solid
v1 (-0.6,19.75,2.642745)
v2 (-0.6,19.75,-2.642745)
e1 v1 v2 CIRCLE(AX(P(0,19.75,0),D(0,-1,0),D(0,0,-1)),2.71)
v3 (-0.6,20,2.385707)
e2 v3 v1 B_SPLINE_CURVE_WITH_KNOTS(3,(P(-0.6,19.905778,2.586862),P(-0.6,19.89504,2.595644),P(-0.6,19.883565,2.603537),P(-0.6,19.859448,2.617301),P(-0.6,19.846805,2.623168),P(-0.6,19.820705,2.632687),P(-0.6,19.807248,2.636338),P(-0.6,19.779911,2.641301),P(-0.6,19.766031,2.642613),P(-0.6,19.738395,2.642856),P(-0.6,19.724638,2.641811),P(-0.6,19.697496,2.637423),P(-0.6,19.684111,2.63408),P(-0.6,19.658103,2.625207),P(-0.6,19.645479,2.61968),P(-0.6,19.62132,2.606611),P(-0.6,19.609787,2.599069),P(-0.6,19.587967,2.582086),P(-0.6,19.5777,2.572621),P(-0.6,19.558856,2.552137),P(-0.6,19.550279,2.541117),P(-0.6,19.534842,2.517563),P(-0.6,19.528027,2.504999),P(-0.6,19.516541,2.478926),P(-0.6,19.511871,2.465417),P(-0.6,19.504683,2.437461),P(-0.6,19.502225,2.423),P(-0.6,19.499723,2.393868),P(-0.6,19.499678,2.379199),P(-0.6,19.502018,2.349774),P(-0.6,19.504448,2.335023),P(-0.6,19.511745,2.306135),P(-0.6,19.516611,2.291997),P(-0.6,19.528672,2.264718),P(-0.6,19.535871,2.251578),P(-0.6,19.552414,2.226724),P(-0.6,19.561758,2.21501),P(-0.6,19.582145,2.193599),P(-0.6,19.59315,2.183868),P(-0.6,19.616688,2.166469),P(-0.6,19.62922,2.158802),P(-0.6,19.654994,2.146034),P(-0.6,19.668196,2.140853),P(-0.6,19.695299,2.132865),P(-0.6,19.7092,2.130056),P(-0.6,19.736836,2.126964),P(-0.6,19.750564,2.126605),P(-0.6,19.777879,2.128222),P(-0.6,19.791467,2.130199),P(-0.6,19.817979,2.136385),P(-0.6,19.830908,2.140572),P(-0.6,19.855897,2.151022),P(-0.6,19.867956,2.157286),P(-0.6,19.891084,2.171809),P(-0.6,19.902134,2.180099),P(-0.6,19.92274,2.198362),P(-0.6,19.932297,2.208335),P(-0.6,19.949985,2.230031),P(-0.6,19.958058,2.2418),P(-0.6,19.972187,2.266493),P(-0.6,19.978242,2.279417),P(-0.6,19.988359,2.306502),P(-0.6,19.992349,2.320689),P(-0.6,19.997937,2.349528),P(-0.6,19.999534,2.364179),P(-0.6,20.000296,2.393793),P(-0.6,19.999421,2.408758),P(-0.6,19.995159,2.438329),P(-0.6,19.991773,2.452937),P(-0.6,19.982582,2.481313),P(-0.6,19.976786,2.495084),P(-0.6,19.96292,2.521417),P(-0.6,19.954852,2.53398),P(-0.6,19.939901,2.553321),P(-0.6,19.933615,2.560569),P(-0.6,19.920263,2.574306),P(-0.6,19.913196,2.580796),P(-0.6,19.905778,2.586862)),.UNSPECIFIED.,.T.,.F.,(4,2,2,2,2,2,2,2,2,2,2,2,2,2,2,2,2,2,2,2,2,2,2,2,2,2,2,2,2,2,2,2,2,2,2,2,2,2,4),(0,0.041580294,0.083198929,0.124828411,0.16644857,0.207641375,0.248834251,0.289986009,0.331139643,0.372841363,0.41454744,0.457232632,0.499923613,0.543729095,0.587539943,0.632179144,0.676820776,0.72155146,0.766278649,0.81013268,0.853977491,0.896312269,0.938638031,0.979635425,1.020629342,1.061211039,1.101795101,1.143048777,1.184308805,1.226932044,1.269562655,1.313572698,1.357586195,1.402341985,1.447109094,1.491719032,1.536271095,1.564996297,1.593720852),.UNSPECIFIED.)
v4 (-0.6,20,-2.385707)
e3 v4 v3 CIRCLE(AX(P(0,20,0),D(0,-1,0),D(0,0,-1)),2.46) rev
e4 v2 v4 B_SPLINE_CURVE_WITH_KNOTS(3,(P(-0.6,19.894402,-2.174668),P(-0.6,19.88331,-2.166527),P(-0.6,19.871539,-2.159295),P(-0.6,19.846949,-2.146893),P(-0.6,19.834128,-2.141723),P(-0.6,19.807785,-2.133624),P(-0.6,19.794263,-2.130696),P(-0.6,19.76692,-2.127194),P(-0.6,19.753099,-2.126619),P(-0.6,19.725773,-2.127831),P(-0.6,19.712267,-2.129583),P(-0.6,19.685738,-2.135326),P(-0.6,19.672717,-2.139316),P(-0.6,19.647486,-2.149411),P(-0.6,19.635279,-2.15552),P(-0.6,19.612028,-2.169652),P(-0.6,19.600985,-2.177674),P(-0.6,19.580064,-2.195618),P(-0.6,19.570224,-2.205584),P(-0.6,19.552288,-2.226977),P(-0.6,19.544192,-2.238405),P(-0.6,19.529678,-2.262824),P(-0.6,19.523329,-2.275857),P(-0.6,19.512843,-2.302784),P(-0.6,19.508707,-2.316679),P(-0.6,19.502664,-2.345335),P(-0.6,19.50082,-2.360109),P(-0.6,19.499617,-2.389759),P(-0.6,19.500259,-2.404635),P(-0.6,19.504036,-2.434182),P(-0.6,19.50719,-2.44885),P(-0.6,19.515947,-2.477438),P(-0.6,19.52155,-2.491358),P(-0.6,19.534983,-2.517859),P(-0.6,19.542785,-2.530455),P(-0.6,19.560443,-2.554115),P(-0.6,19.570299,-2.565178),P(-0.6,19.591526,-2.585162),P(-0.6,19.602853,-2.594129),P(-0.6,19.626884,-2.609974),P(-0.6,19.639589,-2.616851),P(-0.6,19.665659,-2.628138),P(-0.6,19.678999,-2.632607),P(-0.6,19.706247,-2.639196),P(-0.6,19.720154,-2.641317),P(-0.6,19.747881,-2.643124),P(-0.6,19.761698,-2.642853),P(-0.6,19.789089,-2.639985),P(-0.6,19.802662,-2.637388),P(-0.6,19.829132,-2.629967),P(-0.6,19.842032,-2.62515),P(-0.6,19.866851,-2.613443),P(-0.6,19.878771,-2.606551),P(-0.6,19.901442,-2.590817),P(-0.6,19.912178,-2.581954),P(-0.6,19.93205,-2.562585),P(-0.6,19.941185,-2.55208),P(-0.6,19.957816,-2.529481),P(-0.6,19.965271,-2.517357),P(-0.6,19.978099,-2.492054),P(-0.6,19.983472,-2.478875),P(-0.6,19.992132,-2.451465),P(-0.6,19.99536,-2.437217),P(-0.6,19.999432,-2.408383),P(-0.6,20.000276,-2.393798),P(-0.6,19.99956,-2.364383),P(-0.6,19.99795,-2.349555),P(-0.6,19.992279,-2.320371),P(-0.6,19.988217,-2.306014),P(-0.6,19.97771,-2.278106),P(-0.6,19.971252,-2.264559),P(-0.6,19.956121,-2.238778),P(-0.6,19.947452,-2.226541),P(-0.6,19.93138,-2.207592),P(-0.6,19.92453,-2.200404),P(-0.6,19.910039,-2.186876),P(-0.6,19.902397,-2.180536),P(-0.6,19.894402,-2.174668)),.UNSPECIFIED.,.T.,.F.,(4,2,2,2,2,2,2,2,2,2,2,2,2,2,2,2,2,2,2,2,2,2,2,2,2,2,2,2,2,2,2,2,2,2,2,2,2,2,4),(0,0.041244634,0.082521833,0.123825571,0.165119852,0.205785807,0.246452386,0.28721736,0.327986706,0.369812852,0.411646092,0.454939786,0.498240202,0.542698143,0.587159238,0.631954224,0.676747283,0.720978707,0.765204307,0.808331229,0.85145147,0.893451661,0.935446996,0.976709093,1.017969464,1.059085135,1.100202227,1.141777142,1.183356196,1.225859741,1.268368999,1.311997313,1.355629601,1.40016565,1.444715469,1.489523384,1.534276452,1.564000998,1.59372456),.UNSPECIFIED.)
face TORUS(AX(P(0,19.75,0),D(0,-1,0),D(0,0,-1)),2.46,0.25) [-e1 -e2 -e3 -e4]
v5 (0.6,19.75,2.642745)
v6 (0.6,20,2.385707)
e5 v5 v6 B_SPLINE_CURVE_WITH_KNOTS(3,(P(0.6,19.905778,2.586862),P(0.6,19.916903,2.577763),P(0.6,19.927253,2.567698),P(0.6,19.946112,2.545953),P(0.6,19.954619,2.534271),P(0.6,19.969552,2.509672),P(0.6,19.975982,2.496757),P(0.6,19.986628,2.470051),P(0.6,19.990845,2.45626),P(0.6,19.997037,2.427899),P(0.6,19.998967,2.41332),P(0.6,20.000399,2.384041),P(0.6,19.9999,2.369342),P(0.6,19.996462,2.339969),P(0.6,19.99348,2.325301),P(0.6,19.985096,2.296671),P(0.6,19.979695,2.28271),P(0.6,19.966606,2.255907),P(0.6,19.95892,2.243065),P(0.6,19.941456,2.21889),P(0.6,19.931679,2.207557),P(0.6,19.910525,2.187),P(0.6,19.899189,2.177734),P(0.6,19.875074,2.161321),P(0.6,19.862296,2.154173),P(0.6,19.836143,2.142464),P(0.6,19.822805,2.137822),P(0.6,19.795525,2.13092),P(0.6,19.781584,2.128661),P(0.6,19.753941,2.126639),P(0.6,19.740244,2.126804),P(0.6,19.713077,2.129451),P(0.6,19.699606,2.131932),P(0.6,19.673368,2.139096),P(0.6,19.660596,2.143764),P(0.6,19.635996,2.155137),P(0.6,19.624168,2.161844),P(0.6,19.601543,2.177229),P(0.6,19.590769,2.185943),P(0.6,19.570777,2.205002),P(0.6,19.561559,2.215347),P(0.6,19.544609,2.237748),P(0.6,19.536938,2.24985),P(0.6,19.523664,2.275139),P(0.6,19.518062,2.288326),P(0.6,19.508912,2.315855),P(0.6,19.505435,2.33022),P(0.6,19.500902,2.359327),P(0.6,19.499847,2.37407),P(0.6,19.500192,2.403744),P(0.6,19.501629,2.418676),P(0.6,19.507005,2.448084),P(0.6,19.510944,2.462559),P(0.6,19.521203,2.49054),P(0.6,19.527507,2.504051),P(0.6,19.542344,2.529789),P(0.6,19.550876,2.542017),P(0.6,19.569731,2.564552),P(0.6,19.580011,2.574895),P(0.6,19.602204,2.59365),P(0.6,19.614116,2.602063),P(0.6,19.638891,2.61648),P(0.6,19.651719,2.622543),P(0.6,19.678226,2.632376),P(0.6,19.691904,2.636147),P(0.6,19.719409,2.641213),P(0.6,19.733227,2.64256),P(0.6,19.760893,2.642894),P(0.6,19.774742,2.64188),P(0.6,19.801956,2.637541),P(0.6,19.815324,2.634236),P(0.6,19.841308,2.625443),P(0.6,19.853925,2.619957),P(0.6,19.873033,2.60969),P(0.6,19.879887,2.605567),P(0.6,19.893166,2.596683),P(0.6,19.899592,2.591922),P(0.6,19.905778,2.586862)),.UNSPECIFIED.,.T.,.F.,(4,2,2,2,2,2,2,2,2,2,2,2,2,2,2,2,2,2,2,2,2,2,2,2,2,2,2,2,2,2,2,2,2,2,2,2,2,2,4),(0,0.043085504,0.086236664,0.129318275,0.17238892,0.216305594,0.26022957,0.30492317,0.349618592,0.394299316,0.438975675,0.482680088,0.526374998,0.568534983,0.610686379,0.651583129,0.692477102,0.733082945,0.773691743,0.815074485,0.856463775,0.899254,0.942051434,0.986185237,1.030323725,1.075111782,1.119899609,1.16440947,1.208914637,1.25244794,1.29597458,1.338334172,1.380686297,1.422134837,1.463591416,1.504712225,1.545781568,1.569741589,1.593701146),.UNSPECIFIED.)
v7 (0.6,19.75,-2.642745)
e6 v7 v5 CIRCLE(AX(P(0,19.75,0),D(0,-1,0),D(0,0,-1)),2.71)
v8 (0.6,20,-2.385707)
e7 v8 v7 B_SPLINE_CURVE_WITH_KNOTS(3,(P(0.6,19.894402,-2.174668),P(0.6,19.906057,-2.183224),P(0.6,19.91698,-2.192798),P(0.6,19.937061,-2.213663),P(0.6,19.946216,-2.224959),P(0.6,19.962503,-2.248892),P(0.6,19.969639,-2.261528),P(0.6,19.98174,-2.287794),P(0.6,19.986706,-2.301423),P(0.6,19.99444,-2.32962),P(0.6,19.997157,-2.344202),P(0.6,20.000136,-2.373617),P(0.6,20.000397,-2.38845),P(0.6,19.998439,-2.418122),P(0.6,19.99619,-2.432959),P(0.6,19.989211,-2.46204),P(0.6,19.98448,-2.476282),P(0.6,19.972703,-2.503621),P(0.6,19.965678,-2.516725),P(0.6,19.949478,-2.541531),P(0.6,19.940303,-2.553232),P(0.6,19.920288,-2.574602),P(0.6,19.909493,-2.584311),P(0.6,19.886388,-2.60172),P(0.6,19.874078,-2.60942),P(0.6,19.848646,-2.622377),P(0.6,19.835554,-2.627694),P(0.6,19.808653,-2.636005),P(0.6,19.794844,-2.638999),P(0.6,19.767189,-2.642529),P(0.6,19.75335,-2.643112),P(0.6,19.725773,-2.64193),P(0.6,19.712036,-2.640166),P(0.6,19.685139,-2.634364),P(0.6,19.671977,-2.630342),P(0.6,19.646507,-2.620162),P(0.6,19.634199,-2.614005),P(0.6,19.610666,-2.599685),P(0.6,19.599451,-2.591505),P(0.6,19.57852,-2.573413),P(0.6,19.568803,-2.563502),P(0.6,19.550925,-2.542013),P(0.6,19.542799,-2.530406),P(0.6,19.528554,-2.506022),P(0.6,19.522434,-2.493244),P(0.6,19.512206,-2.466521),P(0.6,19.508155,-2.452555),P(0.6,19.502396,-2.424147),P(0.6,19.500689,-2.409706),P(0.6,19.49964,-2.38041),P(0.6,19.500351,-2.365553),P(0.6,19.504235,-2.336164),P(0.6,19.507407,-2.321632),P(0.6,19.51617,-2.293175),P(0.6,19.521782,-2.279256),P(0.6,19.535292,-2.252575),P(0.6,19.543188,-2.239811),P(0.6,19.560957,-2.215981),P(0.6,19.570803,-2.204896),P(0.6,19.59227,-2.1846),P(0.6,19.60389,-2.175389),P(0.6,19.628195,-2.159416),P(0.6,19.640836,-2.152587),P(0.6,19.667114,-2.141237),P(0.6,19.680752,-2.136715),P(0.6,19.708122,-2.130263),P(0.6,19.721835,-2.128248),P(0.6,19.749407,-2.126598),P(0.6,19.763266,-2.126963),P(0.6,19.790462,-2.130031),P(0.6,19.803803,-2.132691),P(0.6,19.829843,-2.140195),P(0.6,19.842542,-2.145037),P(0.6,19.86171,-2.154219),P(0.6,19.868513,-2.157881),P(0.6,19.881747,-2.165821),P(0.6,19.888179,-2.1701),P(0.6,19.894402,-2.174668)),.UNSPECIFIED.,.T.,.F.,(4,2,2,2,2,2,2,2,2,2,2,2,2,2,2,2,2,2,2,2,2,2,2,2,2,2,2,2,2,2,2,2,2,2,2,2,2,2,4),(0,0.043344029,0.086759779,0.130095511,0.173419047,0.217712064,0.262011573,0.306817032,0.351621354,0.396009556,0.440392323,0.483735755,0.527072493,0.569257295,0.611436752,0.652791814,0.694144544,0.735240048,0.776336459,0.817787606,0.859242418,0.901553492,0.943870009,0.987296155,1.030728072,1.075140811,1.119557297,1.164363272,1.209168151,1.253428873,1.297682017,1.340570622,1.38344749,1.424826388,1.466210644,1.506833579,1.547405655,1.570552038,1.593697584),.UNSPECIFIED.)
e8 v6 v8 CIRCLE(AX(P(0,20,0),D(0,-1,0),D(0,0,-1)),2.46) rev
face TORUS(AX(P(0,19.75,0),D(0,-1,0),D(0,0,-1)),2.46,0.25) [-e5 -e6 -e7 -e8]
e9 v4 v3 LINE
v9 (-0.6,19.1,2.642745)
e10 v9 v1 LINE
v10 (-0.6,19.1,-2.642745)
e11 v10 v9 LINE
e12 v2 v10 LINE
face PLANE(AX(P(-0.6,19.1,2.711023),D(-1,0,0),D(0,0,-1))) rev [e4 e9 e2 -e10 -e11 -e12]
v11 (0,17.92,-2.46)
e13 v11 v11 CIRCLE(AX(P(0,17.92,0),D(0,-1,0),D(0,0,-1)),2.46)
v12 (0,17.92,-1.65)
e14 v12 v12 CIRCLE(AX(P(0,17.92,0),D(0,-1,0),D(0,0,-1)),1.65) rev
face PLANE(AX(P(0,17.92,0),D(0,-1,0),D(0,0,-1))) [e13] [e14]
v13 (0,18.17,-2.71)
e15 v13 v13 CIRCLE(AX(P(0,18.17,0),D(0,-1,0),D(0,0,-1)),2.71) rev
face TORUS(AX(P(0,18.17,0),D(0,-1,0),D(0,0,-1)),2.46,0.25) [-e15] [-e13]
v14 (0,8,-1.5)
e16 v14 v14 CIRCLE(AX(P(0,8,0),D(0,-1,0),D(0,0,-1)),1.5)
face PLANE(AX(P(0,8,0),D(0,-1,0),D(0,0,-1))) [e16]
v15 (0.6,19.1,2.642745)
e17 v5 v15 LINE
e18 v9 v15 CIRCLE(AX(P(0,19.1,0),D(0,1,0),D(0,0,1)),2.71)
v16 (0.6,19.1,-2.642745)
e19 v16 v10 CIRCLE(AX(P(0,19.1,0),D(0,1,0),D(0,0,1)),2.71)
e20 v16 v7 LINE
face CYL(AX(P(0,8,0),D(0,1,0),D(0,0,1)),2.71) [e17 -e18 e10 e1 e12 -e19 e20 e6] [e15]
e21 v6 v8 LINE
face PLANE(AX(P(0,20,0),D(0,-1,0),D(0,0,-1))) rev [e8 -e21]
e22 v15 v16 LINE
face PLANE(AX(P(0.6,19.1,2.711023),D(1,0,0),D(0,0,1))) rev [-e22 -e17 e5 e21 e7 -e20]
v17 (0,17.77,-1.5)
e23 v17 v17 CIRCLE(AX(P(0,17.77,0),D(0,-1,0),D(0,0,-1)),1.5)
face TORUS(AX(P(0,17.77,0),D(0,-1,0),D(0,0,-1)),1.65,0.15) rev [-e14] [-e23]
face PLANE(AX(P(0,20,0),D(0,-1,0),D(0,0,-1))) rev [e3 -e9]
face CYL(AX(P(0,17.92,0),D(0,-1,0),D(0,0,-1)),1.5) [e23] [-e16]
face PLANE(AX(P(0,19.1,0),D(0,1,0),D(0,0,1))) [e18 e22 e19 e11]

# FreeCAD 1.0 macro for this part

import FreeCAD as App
import Part
import Sketcher

V = App.Vector
Q = App.Units.Quantity


def edges_at(feature, points):
    """Names of the edges that pass closest to the given points."""
    edges = feature.Shape.Edges
    near = lambda p: min(range(len(edges)), key=lambda i: edges[i].distToShape(Part.Vertex(*p))[0])
    return sorted({f"Edge{near(p) + 1}" for p in points})

doc = App.newDocument("Part")
body = doc.addObject("PartDesign::Body", "Body")

sketch1 = doc.addObject("Sketcher::SketchObject", "Sketch")
body.addObject(sketch1)
sketch1.AttachmentSupport = (doc.XZ_Plane, [""])
sketch1.MapMode = "FlatFace"
sketch1.addGeometry(Part.Circle(V(0, 0, 0), V(0, 0, 1), 2.7), False)
sketch1.addConstraint(Sketcher.Constraint("Coincident", 0, 3, -1, 1))
sketch1.addConstraint(Sketcher.Constraint("Diameter", 0, Q("5.42 mm")))
pad1 = doc.addObject("PartDesign::Pad", "Pad")
body.addObject(pad1)
pad1.Profile = sketch1
pad1.Length = 12
pad1.Reversed = True

sketch2 = doc.addObject("Sketcher::SketchObject", "Sketch001")
body.addObject(sketch2)
sketch2.AttachmentSupport = (doc.XZ_Plane, [""])
sketch2.MapMode = "FlatFace"
sketch2.AttachmentOffset = App.Placement(V(0, 0, -12), App.Rotation())
sketch2.addGeometry(Part.LineSegment(V(-5.1, -5.1, 0), V(-5.1, 5.1, 0)), False)
sketch2.addGeometry(Part.LineSegment(V(-5.1, 5.1, 0), V(5.1, 5.1, 0)), False)
sketch2.addGeometry(Part.LineSegment(V(5.1, 5.1, 0), V(5.1, -5.1, 0)), False)
sketch2.addGeometry(Part.LineSegment(V(5.1, -5.1, 0), V(-5.1, -5.1, 0)), False)
sketch2.addGeometry(Part.Circle(V(0, 0, 0), V(0, 0, 1), 1.5), False)
sketch2.addConstraint(Sketcher.Constraint("Coincident", 0, 2, 1, 1))
sketch2.addConstraint(Sketcher.Constraint("Coincident", 1, 2, 2, 1))
sketch2.addConstraint(Sketcher.Constraint("Coincident", 2, 2, 3, 1))
sketch2.addConstraint(Sketcher.Constraint("Coincident", 3, 2, 0, 1))
sketch2.addConstraint(Sketcher.Constraint("Vertical", 0))
sketch2.addConstraint(Sketcher.Constraint("Horizontal", 1))
sketch2.addConstraint(Sketcher.Constraint("Vertical", 2))
sketch2.addConstraint(Sketcher.Constraint("Horizontal", 3))
sketch2.addConstraint(Sketcher.Constraint("Coincident", 4, 3, -1, 1))
sketch2.addConstraint(Sketcher.Constraint("Symmetric", 0, 2, 2, 2, -1, 1))
sketch2.addConstraint(Sketcher.Constraint("Equal", 3, 0))
sketch2.addConstraint(Sketcher.Constraint("Diameter", 4, Q("3 mm")))
sketch2.addConstraint(Sketcher.Constraint("DistanceX", 1, 1, 1, 2, Q("10.268 mm")))
pocket1 = doc.addObject("PartDesign::Pocket", "Pocket")
body.addObject(pocket1)
pocket1.Profile = sketch2
pocket1.Length = 9.92
pocket1.Reversed = True
doc.recompute()

fillet = doc.addObject("PartDesign::Fillet", "Fillet")
body.addObject(fillet)
fillet.Base = (pocket1, edges_at(pocket1, [(0, 0, -2.71), (0, 2.08, -2.71)]))
fillet.Radius = 0.25
doc.recompute()

fillet2 = doc.addObject("PartDesign::Fillet", "Fillet001")
body.addObject(fillet2)
fillet2.Base = (fillet, edges_at(fillet, [(0, 2.08, -1.5)]))
fillet2.Radius = 0.15

sketch3 = doc.addObject("Sketcher::SketchObject", "Sketch002")
body.addObject(sketch3)
sketch3.AttachmentSupport = (doc.XZ_Plane, [""])
sketch3.MapMode = "FlatFace"
sketch3.addGeometry(Part.LineSegment(V(-0.6, 2.7, 0), V(-0.6, -2.7, 0)), False)
sketch3.addGeometry(Part.LineSegment(V(-0.6, -2.7, 0), V(0.6, -2.7, 0)), False)
sketch3.addGeometry(Part.LineSegment(V(0.6, -2.7, 0), V(0.6, 2.7, 0)), False)
sketch3.addGeometry(Part.LineSegment(V(0.6, 2.7, 0), V(-0.6, 2.7, 0)), False)
sketch3.addConstraint(Sketcher.Constraint("Coincident", 0, 2, 1, 1))
sketch3.addConstraint(Sketcher.Constraint("Coincident", 1, 2, 2, 1))
sketch3.addConstraint(Sketcher.Constraint("Coincident", 2, 2, 3, 1))
sketch3.addConstraint(Sketcher.Constraint("Coincident", 3, 2, 0, 1))
sketch3.addConstraint(Sketcher.Constraint("Vertical", 0))
sketch3.addConstraint(Sketcher.Constraint("Horizontal", 1))
sketch3.addConstraint(Sketcher.Constraint("Vertical", 2))
sketch3.addConstraint(Sketcher.Constraint("Horizontal", 3))
sketch3.addConstraint(Sketcher.Constraint("Symmetric", 0, 2, 2, 2, -1, 1))
sketch3.addConstraint(Sketcher.Constraint("DistanceX", 1, 1, 1, 2, Q("1.2 mm")))
sketch3.addConstraint(Sketcher.Constraint("DistanceY", 0, 2, 0, 1, Q("5.422047 mm")))
pocket2 = doc.addObject("PartDesign::Pocket", "Pocket001")
body.addObject(pocket2)
pocket2.Profile = sketch3
pocket2.Length = 0.9
body2 = doc.addObject("PartDesign::Body", "Body001")
doc.recompute()

body.Placement = App.Placement(V(0, 20, 0), App.Rotation(V(1, 0, 0), 180))
boolean = doc.addObject("PartDesign::Boolean", "Boolean")
body2.addObject(boolean)
boolean.Type = "Fuse"
boolean.addObjects([body])

doc.recompute()
